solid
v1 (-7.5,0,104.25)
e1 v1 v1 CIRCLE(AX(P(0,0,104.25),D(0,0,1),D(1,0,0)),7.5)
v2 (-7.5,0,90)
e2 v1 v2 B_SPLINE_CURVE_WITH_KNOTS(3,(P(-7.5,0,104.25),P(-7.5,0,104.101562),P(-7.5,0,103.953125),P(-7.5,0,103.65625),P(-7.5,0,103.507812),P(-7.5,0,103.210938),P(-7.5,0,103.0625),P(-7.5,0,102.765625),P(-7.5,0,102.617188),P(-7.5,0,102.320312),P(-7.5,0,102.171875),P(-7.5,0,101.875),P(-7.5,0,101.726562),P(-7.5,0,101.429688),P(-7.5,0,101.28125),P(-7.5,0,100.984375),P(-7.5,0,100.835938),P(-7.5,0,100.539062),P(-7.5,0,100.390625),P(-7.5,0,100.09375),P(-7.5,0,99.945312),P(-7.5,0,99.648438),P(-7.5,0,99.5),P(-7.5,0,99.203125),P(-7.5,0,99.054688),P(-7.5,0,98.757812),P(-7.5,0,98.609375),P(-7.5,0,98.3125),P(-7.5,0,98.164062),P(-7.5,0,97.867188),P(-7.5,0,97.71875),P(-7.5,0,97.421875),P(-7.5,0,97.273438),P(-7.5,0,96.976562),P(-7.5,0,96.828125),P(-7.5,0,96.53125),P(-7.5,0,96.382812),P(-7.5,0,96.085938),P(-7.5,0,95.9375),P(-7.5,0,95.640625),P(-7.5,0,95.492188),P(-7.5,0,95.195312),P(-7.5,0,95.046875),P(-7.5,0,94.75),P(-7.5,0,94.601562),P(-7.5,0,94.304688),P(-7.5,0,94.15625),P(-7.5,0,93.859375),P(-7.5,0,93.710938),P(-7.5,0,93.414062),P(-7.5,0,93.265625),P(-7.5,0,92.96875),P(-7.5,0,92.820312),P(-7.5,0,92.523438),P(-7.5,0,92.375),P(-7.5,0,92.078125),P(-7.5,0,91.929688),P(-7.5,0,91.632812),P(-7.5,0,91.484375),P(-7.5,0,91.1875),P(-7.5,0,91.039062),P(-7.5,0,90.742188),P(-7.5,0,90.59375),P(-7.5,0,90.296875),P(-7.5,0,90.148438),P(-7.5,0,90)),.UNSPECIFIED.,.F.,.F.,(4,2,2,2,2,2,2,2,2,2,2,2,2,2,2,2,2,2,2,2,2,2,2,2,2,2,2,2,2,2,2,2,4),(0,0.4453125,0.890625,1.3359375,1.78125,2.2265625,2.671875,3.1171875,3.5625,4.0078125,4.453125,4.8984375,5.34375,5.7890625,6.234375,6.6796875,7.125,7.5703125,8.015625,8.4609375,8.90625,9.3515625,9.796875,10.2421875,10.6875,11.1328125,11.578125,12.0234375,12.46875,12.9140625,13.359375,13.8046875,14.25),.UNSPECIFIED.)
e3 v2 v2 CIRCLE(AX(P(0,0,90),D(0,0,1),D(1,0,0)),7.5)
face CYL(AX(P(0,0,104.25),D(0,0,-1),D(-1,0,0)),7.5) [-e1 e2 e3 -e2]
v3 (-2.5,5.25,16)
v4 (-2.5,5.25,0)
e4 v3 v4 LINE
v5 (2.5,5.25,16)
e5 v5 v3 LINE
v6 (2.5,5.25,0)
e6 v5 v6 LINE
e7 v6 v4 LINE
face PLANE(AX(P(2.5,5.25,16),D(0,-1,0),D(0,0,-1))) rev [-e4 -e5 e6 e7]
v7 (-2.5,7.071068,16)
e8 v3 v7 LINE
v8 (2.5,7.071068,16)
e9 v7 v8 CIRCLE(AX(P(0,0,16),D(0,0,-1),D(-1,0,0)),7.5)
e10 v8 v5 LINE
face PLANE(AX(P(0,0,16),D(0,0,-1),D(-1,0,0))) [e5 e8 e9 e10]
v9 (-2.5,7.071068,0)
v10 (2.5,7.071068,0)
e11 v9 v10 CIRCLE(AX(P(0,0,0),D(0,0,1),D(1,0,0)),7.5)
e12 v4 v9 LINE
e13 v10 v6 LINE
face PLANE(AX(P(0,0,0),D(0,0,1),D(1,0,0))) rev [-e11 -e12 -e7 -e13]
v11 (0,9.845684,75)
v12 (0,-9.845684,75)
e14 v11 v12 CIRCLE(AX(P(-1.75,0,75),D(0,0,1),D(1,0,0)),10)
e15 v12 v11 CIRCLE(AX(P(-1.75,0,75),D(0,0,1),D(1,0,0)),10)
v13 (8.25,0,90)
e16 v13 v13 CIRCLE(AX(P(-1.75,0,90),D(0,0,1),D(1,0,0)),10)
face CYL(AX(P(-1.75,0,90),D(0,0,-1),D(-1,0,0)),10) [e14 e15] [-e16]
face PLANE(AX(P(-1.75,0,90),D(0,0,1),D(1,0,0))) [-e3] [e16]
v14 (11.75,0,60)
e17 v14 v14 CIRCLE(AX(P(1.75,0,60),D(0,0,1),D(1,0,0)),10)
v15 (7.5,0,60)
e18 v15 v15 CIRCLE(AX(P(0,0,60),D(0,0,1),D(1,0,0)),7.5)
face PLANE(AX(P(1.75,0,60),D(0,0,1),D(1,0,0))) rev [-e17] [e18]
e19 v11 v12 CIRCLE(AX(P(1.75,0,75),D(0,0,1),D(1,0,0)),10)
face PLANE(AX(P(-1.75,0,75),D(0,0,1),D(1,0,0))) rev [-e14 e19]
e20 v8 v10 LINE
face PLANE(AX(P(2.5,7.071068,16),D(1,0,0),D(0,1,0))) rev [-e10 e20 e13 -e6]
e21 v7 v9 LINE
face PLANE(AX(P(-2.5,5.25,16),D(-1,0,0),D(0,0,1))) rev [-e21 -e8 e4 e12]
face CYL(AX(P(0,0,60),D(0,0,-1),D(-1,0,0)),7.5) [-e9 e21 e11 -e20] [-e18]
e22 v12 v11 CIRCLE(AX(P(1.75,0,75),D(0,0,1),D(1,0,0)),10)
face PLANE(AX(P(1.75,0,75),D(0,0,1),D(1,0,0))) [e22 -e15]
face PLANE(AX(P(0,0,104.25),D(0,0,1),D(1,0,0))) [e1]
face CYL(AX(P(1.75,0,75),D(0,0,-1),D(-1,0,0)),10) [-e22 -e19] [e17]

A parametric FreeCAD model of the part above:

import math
import FreeCAD as App
import Part
import Sketcher

doc = App.newDocument("Part")
body = doc.addObject("PartDesign::Body", "Body")

# Sketch on XY plane
sketch1 = body.newObject("Sketcher::SketchObject", "Sketch")
sketch1.AttachmentSupport = (doc.getObject("XY_Plane"), [""])
sketch1.MapMode = "FlatFace"
sketch1.addGeometry(Part.Circle(App.Vector(0, 0, 0), App.Vector(0, 0, 1), 8), False)
sketch1.addConstraint([
    Sketcher.Constraint("Coincident", 0, 3, -1, 1),
    Sketcher.Constraint("Diameter", 0, 15.0),
])
pad1 = body.newObject("PartDesign::Pad", "Pad")
pad1.Profile = sketch1
pad1.Length = 60

# Sketch on XY plane
sketch2 = body.newObject("Sketcher::SketchObject", "Sketch001")
sketch2.AttachmentSupport = (doc.getObject("XY_Plane"), [""])
sketch2.MapMode = "FlatFace"
sketch2.AttachmentOffset = App.Placement(App.Vector(0, 0, 60), App.Rotation())
sketch2.addGeometry(Part.Circle(App.Vector(2, 0, 0), App.Vector(0, 0, 1), 10), False)
sketch2.addConstraint([
    Sketcher.Constraint("PointOnObject", 0, 3, -1),
    Sketcher.Constraint("Diameter", 0, 20.0),
    Sketcher.Constraint("DistanceX", -1, 1, 0, 3, 1.75),
])
pad2 = body.newObject("PartDesign::Pad", "Pad001")
pad2.Profile = sketch2
pad2.Length = 15

# Sketch on XY plane
sketch3 = body.newObject("Sketcher::SketchObject", "Sketch002")
sketch3.AttachmentSupport = (doc.getObject("XY_Plane"), [""])
sketch3.MapMode = "FlatFace"
sketch3.AttachmentOffset = App.Placement(App.Vector(0, 0, 75), App.Rotation())
sketch3.addGeometry(Part.Circle(App.Vector(-2, 0, 0), App.Vector(0, 0, 1), 10), False)
sketch3.addConstraint([
    Sketcher.Constraint("PointOnObject", 0, 3, -1),
    Sketcher.Constraint("Diameter", 0, 20.0),
    Sketcher.Constraint("DistanceX", 0, 3, -1, 1, 1.75),
])
pad3 = body.newObject("PartDesign::Pad", "Pad002")
pad3.Profile = sketch3
pad3.Length = 15

# Sketch on XY plane
sketch4 = body.newObject("Sketcher::SketchObject", "Sketch003")
sketch4.AttachmentSupport = (doc.getObject("XY_Plane"), [""])
sketch4.MapMode = "FlatFace"
sketch4.AttachmentOffset = App.Placement(App.Vector(0, 0, 90), App.Rotation())
sketch4.addGeometry(Part.Circle(App.Vector(0, 0, 0), App.Vector(0, 0, 1), 8), False)
sketch4.addConstraint([
    Sketcher.Constraint("Coincident", 0, 3, -1, 1),
    Sketcher.Constraint("Diameter", 0, 15.0),
])
pad4 = body.newObject("PartDesign::Pad", "Pad003")
pad4.Profile = sketch4
pad4.Length = 14.25

# Sketch on XY plane
sketch5 = body.newObject("Sketcher::SketchObject", "Sketch004")
sketch5.AttachmentSupport = (doc.getObject("XY_Plane"), [""])
sketch5.MapMode = "FlatFace"
sketch5.addGeometry([
    Part.LineSegment(App.Vector(2.5, 7.1, 0), App.Vector(2.5, 5.2, 0)),
    Part.LineSegment(App.Vector(2.5, 5.2, 0), App.Vector(-2.5, 5.2, 0)),
    Part.LineSegment(App.Vector(-2.5, 5.2, 0), App.Vector(-2.5, 7.1, 0)),
    Part.ArcOfCircle(Part.Circle(App.Vector(0, 0, 0), App.Vector(0, 0, 1), 7.5), math.radians(71), math.radians(109)),
], False)
sketch5.addConstraint([
    Sketcher.Constraint("Coincident", 0, 2, 1, 1),
    Sketcher.Constraint("Coincident", 1, 2, 2, 1),
    Sketcher.Constraint("Coincident", 2, 2, 3, 2),
    Sketcher.Constraint("Coincident", 3, 1, 0, 1),
    Sketcher.Constraint("Vertical", 0),
    Sketcher.Constraint("Horizontal", 1),
    Sketcher.Constraint("Vertical", 2),
    Sketcher.Constraint("Coincident", 3, 3, -1, 1),
    Sketcher.Constraint("Horizontal", 2, 2, 3, 1),
    Sketcher.Constraint("Radius", 3, 7.5),
    Sketcher.Constraint("DistanceX", 1, 2, 1, 1, 5.0),
    Sketcher.Constraint("DistanceY", -1, 1, 0, 2, 5.25),
])
pocket1 = body.newObject("PartDesign::Pocket", "Pocket")
pocket1.Profile = sketch5
pocket1.Length = 16
pocket1.Reversed = True

doc.recompute()
